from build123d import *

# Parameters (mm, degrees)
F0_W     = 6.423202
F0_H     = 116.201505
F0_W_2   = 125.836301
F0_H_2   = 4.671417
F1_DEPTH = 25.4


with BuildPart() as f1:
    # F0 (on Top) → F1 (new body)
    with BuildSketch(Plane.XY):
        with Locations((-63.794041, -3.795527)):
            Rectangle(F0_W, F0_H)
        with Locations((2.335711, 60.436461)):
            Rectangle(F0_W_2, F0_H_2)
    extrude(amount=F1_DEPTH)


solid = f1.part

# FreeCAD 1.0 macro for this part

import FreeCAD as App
import Part
import Sketcher

V = App.Vector
Q = App.Units.Quantity


def add_polygon(sketch, points):
    """Adds a closed chain of lines whose ends are joined by coincident constraints."""
    first, n = sketch.GeometryCount, len(points)
    for a, b in zip(points, points[1:] + points[:1]):
        sketch.addGeometry(Part.LineSegment(App.Vector(*a, 0), App.Vector(*b, 0)), False)
    for i in range(n):
        sketch.addConstraint(Sketcher.Constraint("Coincident", first + i, 2, first + (i + 1) % n, 1))

doc = App.newDocument("Part")
body = doc.addObject("PartDesign::Body", "Body")
body.AllowCompound = True

# Sketch on XY plane
sketch1 = body.newObject("Sketcher::SketchObject", "Sketch")
sketch1.AttachmentSupport = (doc.getObject("XY_Plane"), [""])
sketch1.MapMode = "FlatFace"
add_polygon(sketch1, [(-67, 54.3), (-67, -61.9), (-60.6, -61.9), (-60.6, 54.3)])  # lines 0-3
add_polygon(sketch1, [(-60.6, 62.8), (-60.6, 58.1), (65.3, 58.1), (65.3, 62.8)])  # lines 4-7
sketch1.addConstraint(Sketcher.Constraint("Vertical", 0))
sketch1.addConstraint(Sketcher.Constraint("Horizontal", 1))
sketch1.addConstraint(Sketcher.Constraint("Vertical", 2))
sketch1.addConstraint(Sketcher.Constraint("Horizontal", 3))
sketch1.addConstraint(Sketcher.Constraint("Vertical", 4))
sketch1.addConstraint(Sketcher.Constraint("Horizontal", 5))
sketch1.addConstraint(Sketcher.Constraint("Vertical", 6))
sketch1.addConstraint(Sketcher.Constraint("Horizontal", 7))
sketch1.addConstraint(Sketcher.Constraint("Vertical", 2, 2, 4, 2))
sketch1.addConstraint(Sketcher.Constraint("DistanceX", 1, 1, 1, 2, Q("6.423202 mm")))
sketch1.addConstraint(Sketcher.Constraint("DistanceX", 5, 1, 5, 2, Q("125.836301 mm")))
sketch1.addConstraint(Sketcher.Constraint("DistanceY", 0, 2, 0, 1, Q("116.201505 mm")))
sketch1.addConstraint(Sketcher.Constraint("DistanceY", 4, 2, 4, 1, Q("4.671417 mm")))
sketch1.addConstraint(Sketcher.Constraint("DistanceX", 0, 2, -1, 1, Q("67.005642 mm")))
sketch1.addConstraint(Sketcher.Constraint("DistanceY", 0, 2, -1, 1, Q("61.896279 mm")))
sketch1.addConstraint(Sketcher.Constraint("DistanceY", -1, 1, 6, 2, Q("62.772169 mm")))
pad1 = body.newObject("PartDesign::Pad", "Pad")
pad1.Profile = sketch1
pad1.Length = Q("1 in")

doc.recompute()
